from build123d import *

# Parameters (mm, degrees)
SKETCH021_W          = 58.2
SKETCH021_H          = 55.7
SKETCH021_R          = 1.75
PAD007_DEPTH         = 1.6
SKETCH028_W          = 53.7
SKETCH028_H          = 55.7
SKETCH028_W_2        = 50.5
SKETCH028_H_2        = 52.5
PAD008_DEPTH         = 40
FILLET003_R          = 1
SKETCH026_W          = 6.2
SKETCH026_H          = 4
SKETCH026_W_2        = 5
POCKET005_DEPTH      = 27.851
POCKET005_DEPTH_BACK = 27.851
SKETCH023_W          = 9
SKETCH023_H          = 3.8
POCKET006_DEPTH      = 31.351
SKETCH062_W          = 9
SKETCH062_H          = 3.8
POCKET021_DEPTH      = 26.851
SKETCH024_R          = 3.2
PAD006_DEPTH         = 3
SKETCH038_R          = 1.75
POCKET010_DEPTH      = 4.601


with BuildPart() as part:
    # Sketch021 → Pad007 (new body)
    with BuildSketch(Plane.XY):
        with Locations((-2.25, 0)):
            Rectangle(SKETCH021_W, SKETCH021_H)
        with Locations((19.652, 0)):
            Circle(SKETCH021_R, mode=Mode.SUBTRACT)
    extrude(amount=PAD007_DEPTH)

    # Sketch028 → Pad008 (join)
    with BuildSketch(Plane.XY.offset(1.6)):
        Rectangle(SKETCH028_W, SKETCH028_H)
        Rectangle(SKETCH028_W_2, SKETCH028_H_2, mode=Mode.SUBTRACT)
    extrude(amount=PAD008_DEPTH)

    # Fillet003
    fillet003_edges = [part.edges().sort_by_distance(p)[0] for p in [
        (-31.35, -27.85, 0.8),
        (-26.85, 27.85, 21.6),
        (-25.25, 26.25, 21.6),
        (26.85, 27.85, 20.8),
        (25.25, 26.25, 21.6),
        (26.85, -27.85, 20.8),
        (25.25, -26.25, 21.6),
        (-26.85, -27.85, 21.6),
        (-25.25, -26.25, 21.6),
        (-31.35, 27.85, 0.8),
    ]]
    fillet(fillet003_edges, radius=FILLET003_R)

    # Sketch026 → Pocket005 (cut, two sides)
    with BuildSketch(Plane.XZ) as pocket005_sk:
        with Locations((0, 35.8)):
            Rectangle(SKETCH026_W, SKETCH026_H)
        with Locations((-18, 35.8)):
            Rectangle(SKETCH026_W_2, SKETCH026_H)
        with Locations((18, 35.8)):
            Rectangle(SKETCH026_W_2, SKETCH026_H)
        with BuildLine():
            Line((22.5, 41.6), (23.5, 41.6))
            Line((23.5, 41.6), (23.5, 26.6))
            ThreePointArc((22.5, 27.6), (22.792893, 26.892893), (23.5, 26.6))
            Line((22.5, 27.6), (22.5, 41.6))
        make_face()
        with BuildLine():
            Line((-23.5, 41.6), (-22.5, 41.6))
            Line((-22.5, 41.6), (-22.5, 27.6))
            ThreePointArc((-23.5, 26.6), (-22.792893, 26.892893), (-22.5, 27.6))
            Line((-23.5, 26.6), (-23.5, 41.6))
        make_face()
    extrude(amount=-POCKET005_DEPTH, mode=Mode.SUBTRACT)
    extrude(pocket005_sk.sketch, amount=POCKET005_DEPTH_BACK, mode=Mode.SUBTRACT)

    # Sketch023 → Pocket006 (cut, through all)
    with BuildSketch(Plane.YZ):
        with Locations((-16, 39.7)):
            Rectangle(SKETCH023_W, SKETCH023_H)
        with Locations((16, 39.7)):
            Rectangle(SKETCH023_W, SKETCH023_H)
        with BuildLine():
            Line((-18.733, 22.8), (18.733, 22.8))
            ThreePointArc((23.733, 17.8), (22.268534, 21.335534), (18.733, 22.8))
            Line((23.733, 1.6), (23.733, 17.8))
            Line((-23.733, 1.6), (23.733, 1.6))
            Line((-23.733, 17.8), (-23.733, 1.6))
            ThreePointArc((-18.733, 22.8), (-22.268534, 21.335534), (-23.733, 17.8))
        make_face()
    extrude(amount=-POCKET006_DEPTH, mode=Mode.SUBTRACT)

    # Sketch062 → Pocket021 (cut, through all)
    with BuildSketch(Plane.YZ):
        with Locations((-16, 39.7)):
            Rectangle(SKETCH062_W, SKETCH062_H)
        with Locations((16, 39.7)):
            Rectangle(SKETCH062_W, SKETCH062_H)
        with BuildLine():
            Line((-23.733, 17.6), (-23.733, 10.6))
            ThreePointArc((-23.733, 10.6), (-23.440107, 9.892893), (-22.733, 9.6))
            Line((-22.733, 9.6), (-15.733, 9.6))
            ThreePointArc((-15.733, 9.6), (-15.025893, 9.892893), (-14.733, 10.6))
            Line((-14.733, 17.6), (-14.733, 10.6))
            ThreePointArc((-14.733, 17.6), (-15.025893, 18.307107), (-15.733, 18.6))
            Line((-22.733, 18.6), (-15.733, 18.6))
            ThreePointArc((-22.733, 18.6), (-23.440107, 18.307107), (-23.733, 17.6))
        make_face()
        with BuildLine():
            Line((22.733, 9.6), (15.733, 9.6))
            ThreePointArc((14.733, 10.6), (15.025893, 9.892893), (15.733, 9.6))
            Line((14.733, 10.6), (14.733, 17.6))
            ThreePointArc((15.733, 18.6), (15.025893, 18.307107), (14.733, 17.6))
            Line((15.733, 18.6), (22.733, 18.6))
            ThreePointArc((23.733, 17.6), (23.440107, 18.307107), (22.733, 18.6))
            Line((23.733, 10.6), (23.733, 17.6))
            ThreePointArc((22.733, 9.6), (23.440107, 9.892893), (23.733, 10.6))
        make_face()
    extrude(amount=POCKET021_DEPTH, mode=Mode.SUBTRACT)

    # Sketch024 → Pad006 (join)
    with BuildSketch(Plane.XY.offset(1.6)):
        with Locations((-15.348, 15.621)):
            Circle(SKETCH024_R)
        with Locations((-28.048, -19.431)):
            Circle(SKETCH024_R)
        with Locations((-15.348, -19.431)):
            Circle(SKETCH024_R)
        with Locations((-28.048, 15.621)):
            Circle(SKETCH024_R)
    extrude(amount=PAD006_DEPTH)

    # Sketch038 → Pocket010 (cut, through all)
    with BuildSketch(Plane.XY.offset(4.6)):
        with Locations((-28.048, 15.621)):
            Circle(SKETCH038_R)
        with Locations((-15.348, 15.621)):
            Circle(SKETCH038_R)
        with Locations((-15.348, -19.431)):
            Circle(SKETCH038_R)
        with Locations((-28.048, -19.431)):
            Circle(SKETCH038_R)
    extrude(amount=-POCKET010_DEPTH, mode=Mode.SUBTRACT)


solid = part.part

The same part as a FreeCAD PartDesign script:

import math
import FreeCAD as App
import Part
import Sketcher
from FreeCAD import Vector


def edges_at(feature, points):
    """Names of the edges that pass closest to the given points."""
    edges = feature.Shape.Edges
    near = lambda p: min(range(len(edges)), key=lambda i: edges[i].distToShape(Part.Vertex(*p))[0])
    return sorted({f"Edge{near(p) + 1}" for p in points})


def add_polygon(sketch, points):
    """Adds a closed chain of lines whose ends are joined by coincident constraints."""
    first, n = sketch.GeometryCount, len(points)
    for a, b in zip(points, points[1:] + points[:1]):
        sketch.addGeometry(Part.LineSegment(App.Vector(*a, 0), App.Vector(*b, 0)), False)
    for i in range(n):
        sketch.addConstraint(Sketcher.Constraint("Coincident", first + i, 2, first + (i + 1) % n, 1))

doc = App.newDocument("Part")
body = doc.addObject("PartDesign::Body", "Body")

sketch1 = doc.addObject("Sketcher::SketchObject", "Sketch")
body.addObject(sketch1)
sketch1.AttachmentSupport = (doc.XY_Plane, [""])
sketch1.MapMode = "FlatFace"
add_polygon(sketch1, [(-31.4, 27.9), (-31.4, -27.9), (26.9, -27.9), (26.9, 27.9)])
sketch1.addGeometry(Part.Circle(Vector(19.7, 0, 0), Vector(0, 0, 1), 1.8), False)
sketch1.addConstraint([
    Sketcher.Constraint("Vertical", 0),
    Sketcher.Constraint("Horizontal", 1),
    Sketcher.Constraint("Vertical", 2),
    Sketcher.Constraint("Horizontal", 3),
    Sketcher.Constraint("PointOnObject", 4, 3, -1),
    Sketcher.Constraint("Diameter", 4, 3.5),
    Sketcher.Constraint("DistanceX", 1, 1, 1, 2, 58.2),
    Sketcher.Constraint("DistanceY", 0, 2, 0, 1, 55.7),
    Sketcher.Constraint("DistanceX", 0, 2, -1, 1, 31.35),
    Sketcher.Constraint("DistanceY", 0, 2, -1, 1, 27.85),
    Sketcher.Constraint("DistanceX", -1, 1, 4, 3, 19.652),
])
pad1 = doc.addObject("PartDesign::Pad", "Pad")
body.addObject(pad1)
pad1.Profile = sketch1
pad1.Length = 1.6

sketch2 = doc.addObject("Sketcher::SketchObject", "Sketch001")
body.addObject(sketch2)
sketch2.AttachmentSupport = (doc.XY_Plane, [""])
sketch2.MapMode = "FlatFace"
sketch2.AttachmentOffset = App.Placement(Vector(0, 0, 1.6), App.Rotation())
add_polygon(sketch2, [(-27, 28), (-27, -28), (27, -28), (27, 28)])
add_polygon(sketch2, [(25, -26), (-25, -26), (-25, 26), (25, 26)])
sketch2.addConstraint([
    Sketcher.Constraint("Vertical", 0),
    Sketcher.Constraint("Horizontal", 1),
    Sketcher.Constraint("Vertical", 2),
    Sketcher.Constraint("Horizontal", 3),
    Sketcher.Constraint("Horizontal", 4),
    Sketcher.Constraint("Vertical", 5),
    Sketcher.Constraint("Horizontal", 6),
    Sketcher.Constraint("Vertical", 7),
    Sketcher.Constraint("Symmetric", 0, 2, 2, 2, -1, 1),
    Sketcher.Constraint("Symmetric", 4, 2, 6, 2, -1, 1),
    Sketcher.Constraint("DistanceX", 1, 1, 1, 2, 53.7),
    Sketcher.Constraint("DistanceX", 4, 2, 4, 1, 50.5),
    Sketcher.Constraint("DistanceY", 0, 2, 0, 1, 55.7),
    Sketcher.Constraint("DistanceY", 5, 1, 5, 2, 52.5),
])
pad2 = doc.addObject("PartDesign::Pad", "Pad001")
body.addObject(pad2)
pad2.Profile = sketch2
pad2.Length = 40
doc.recompute()

fillet = doc.addObject("PartDesign::Fillet", "Fillet")
body.addObject(fillet)
fillet.Base = (pad2, edges_at(pad2, [
    (-31.35, -27.85, 0.8),
    (-26.85, 27.85, 21.6),
    (-25.25, 26.25, 21.6),
    (26.85, 27.85, 20.8),
    (25.25, 26.25, 21.6),
    (26.85, -27.85, 20.8),
    (25.25, -26.25, 21.6),
    (-26.85, -27.85, 21.6),
    (-25.25, -26.25, 21.6),
    (-31.35, 27.85, 0.8),
]))
fillet.Radius = 1

sketch3 = doc.addObject("Sketcher::SketchObject", "Sketch002")
body.addObject(sketch3)
sketch3.AttachmentSupport = (doc.XZ_Plane, [""])
sketch3.MapMode = "FlatFace"
add_polygon(sketch3, [(-3.1, 37.8), (-3.1, 33.8), (3.1, 33.8), (3.1, 37.8)])
add_polygon(sketch3, [(-20.5, 37.8), (-20.5, 33.8), (-15.5, 33.8), (-15.5, 37.8)])
add_polygon(sketch3, [(15.5, 37.8), (15.5, 33.8), (20.5, 33.8), (20.5, 37.8)])
sketch3.addGeometry(Part.LineSegment(Vector(23.5, 41.6, 0), Vector(22.5, 41.6, 0)), False)
sketch3.addGeometry(Part.LineSegment(Vector(22.5, 41.6, 0), Vector(22.5, 27.6, 0)), False)
sketch3.addGeometry(Part.ArcOfCircle(Part.Circle(Vector(23.5, 27.6, 0), Vector(0, 0, 1), 1), math.radians(180), math.radians(270)), False)
sketch3.addGeometry(Part.LineSegment(Vector(23.5, 26.6, 0), Vector(23.5, 41.6, 0)), False)
sketch3.addGeometry(Part.LineSegment(Vector(-22.5, 41.6, 0), Vector(-23.5, 41.6, 0)), False)
sketch3.addGeometry(Part.LineSegment(Vector(-23.5, 41.6, 0), Vector(-23.5, 26.6, 0)), False)
sketch3.addGeometry(Part.ArcOfCircle(Part.Circle(Vector(-23.5, 27.6, 0), Vector(0, 0, 1), 1), math.radians(-90), math.radians(0)), False)
sketch3.addGeometry(Part.LineSegment(Vector(-22.5, 27.6, 0), Vector(-22.5, 41.6, 0)), False)
sketch3.addConstraint([
    Sketcher.Constraint("Coincident", 12, 2, 13, 1),
    Sketcher.Constraint("Tangent", 13, 2, 14, 1),
    Sketcher.Constraint("Coincident", 14, 2, 15, 1),
    Sketcher.Constraint("Coincident", 15, 2, 12, 1),
    Sketcher.Constraint("Coincident", 16, 2, 17, 1),
    Sketcher.Constraint("Coincident", 17, 2, 18, 1),
    Sketcher.Constraint("Tangent", 18, 2, 19, 1),
    Sketcher.Constraint("Coincident", 19, 2, 16, 1),
    Sketcher.Constraint("Vertical", 0),
    Sketcher.Constraint("Horizontal", 1),
    Sketcher.Constraint("Vertical", 2),
    Sketcher.Constraint("Horizontal", 3),
    Sketcher.Constraint("Vertical", 4),
    Sketcher.Constraint("Horizontal", 5),
    Sketcher.Constraint("Vertical", 6),
    Sketcher.Constraint("Horizontal", 7),
    Sketcher.Constraint("Vertical", 8),
    Sketcher.Constraint("Horizontal", 9),
    Sketcher.Constraint("Vertical", 10),
    Sketcher.Constraint("Horizontal", 11),
    Sketcher.Constraint("Horizontal", 12),
    Sketcher.Constraint("Vertical", 13),
    Sketcher.Constraint("Vertical", 15),
    Sketcher.Constraint("Horizontal", 16),
    Sketcher.Constraint("Vertical", 17),
    Sketcher.Constraint("Vertical", 19),
    Sketcher.Constraint("Equal", 14, 18),
    Sketcher.Constraint("Symmetric", 14, 3, 18, 3, -2),
    Sketcher.Constraint("Symmetric", 5, 2, 8, 2, -2),
    Sketcher.Constraint("Symmetric", 7, 2, 10, 2, -2),
    Sketcher.Constraint("Symmetric", 15, 2, 16, 2, -2),
    Sketcher.Constraint("Horizontal", 1, 2, 4, 2),
    Sketcher.Constraint("Horizontal", 3, 2, 6, 2),
    Sketcher.Constraint("Vertical", 18, 3, 16, 2),
    Sketcher.Constraint("Radius", 14, 0.999999),
    Sketcher.Constraint("DistanceX", 5, 1, 5, 2, 5.0),
    Sketcher.Constraint("DistanceY", 0, 2, 0, 1, 4.0),
    Sketcher.Constraint("DistanceY", 13, 2, 13, 1, 14.0),
    Sketcher.Constraint("DistanceX", 1, 1, 1, 2, 6.2),
    Sketcher.Constraint("DistanceX", 18, 3, 14, 3, 46.999999),
    Sketcher.Constraint("DistanceX", 18, 3, 4, 2, 2.999999),
    Sketcher.Constraint("DistanceY", -1, 1, 14, 3, 27.599999),
    Sketcher.Constraint("DistanceX", 0, 2, -1, 1, 3.1),
    Sketcher.Constraint("DistanceY", -1, 1, 0, 2, 33.8),
])
pocket1 = doc.addObject("PartDesign::Pocket", "Pocket")
body.addObject(pocket1)
pocket1.Profile = sketch3
pocket1.Type = "ThroughAll"
pocket1.Midplane = True

sketch4 = doc.addObject("Sketcher::SketchObject", "Sketch003")
body.addObject(sketch4)
sketch4.AttachmentSupport = (doc.YZ_Plane, [""])
sketch4.MapMode = "FlatFace"
add_polygon(sketch4, [(-20.5, 41.6), (-20.5, 37.8), (-11.5, 37.8), (-11.5, 41.6)])
add_polygon(sketch4, [(11.5, 41.6), (11.5, 37.8), (20.5, 37.8), (20.5, 41.6)])
sketch4.addGeometry(Part.LineSegment(Vector(18.7, 22.8, 0), Vector(-18.7, 22.8, 0)), False)
sketch4.addGeometry(Part.ArcOfCircle(Part.Circle(Vector(-18.7, 17.8, 0), Vector(0, 0, 1), 5), math.radians(90), math.radians(180)), False)
sketch4.addGeometry(Part.LineSegment(Vector(-23.7, 17.8, 0), Vector(-23.7, 1.6, 0)), False)
sketch4.addGeometry(Part.LineSegment(Vector(-23.7, 1.6, 0), Vector(23.7, 1.6, 0)), False)
sketch4.addGeometry(Part.LineSegment(Vector(23.7, 1.6, 0), Vector(23.7, 17.8, 0)), False)
sketch4.addGeometry(Part.ArcOfCircle(Part.Circle(Vector(18.7, 17.8, 0), Vector(0, 0, 1), 5), math.radians(0), math.radians(90)), False)
sketch4.addConstraint([
    Sketcher.Constraint("Tangent", 8, 2, 9, 1),
    Sketcher.Constraint("Tangent", 9, 2, 10, 1),
    Sketcher.Constraint("Coincident", 10, 2, 11, 1),
    Sketcher.Constraint("Coincident", 11, 2, 12, 1),
    Sketcher.Constraint("Tangent", 12, 2, 13, 1),
    Sketcher.Constraint("Tangent", 13, 2, 8, 1),
    Sketcher.Constraint("Vertical", 0),
    Sketcher.Constraint("Horizontal", 1),
    Sketcher.Constraint("Vertical", 2),
    Sketcher.Constraint("Horizontal", 3),
    Sketcher.Constraint("Vertical", 4),
    Sketcher.Constraint("Horizontal", 5),
    Sketcher.Constraint("Vertical", 6),
    Sketcher.Constraint("Horizontal", 7),
    Sketcher.Constraint("Horizontal", 8),
    Sketcher.Constraint("Vertical", 10),
    Sketcher.Constraint("Horizontal", 11),
    Sketcher.Constraint("Vertical", 12),
    Sketcher.Constraint("Equal", 9, 13),
    Sketcher.Constraint("Symmetric", 1, 2, 4, 2, -2),
    Sketcher.Constraint("Symmetric", 3, 2, 6, 2, -2),
    Sketcher.Constraint("Radius", 9, 5.0),
    Sketcher.Constraint("DistanceX", 1, 1, 1, 2, 9.0),
    Sketcher.Constraint("DistanceY", 0, 2, 0, 1, 3.8),
    Sketcher.Constraint("DistanceY", 10, 2, 10, 1, 16.2),
    Sketcher.Constraint("DistanceY", 9, 3, 0, 2, 20.0),
    Sketcher.Constraint("DistanceX", 1, 2, 4, 2, 23.0),
    Sketcher.Constraint("DistanceY", -1, 1, 9, 3, 17.8),
    Sketcher.Constraint("DistanceX", 8, 2, 8, 1, 37.466),
    Sketcher.Constraint("DistanceX", 9, 3, -1, 1, 18.733),
])
pocket2 = doc.addObject("PartDesign::Pocket", "Pocket001")
body.addObject(pocket2)
pocket2.Profile = sketch4
pocket2.Type = "ThroughAll"

sketch5 = doc.addObject("Sketcher::SketchObject", "Sketch004")
body.addObject(sketch5)
sketch5.AttachmentSupport = (doc.YZ_Plane, [""])
sketch5.MapMode = "FlatFace"
add_polygon(sketch5, [(-20.5, 41.6), (-20.5, 37.8), (-11.5, 37.8), (-11.5, 41.6)])
add_polygon(sketch5, [(11.5, 41.6), (11.5, 37.8), (20.5, 37.8), (20.5, 41.6)])
sketch5.addGeometry(Part.LineSegment(Vector(-23.7, 17.6, 0), Vector(-23.7, 10.6, 0)), False)
sketch5.addGeometry(Part.ArcOfCircle(Part.Circle(Vector(-22.7, 10.6, 0), Vector(0, 0, 1), 1), math.radians(180), math.radians(270)), False)
sketch5.addGeometry(Part.LineSegment(Vector(-22.7, 9.6, 0), Vector(-15.7, 9.6, 0)), False)
sketch5.addGeometry(Part.ArcOfCircle(Part.Circle(Vector(-15.7, 10.6, 0), Vector(0, 0, 1), 1), math.radians(-90), math.radians(0)), False)
sketch5.addGeometry(Part.LineSegment(Vector(-14.7, 10.6, 0), Vector(-14.7, 17.6, 0)), False)
sketch5.addGeometry(Part.ArcOfCircle(Part.Circle(Vector(-15.7, 17.6, 0), Vector(0, 0, 1), 1), math.radians(0), math.radians(90)), False)
sketch5.addGeometry(Part.LineSegment(Vector(-15.7, 18.6, 0), Vector(-22.7, 18.6, 0)), False)
sketch5.addGeometry(Part.ArcOfCircle(Part.Circle(Vector(-22.7, 17.6, 0), Vector(0, 0, 1), 1), math.radians(90), math.radians(180)), False)
sketch5.addGeometry(Part.LineSegment(Vector(15.7, 9.6, 0), Vector(22.7, 9.6, 0)), False)
sketch5.addGeometry(Part.ArcOfCircle(Part.Circle(Vector(22.7, 10.6, 0), Vector(0, 0, 1), 1), math.radians(-90), math.radians(0)), False)
sketch5.addGeometry(Part.LineSegment(Vector(23.7, 10.6, 0), Vector(23.7, 17.6, 0)), False)
sketch5.addGeometry(Part.ArcOfCircle(Part.Circle(Vector(22.7, 17.6, 0), Vector(0, 0, 1), 1), math.radians(0), math.radians(90)), False)
sketch5.addGeometry(Part.LineSegment(Vector(22.7, 18.6, 0), Vector(15.7, 18.6, 0)), False)
sketch5.addGeometry(Part.ArcOfCircle(Part.Circle(Vector(15.7, 17.6, 0), Vector(0, 0, 1), 1), math.radians(90), math.radians(180)), False)
sketch5.addGeometry(Part.LineSegment(Vector(14.7, 17.6, 0), Vector(14.7, 10.6, 0)), False)
sketch5.addGeometry(Part.ArcOfCircle(Part.Circle(Vector(15.7, 10.6, 0), Vector(0, 0, 1), 1), math.radians(180), math.radians(270)), False)
sketch5.addConstraint([
    Sketcher.Constraint("Tangent", 8, 2, 9, 1),
    Sketcher.Constraint("Tangent", 9, 2, 10, 1),
    Sketcher.Constraint("Tangent", 10, 2, 11, 1),
    Sketcher.Constraint("Tangent", 11, 2, 12, 1),
    Sketcher.Constraint("Tangent", 12, 2, 13, 1),
    Sketcher.Constraint("Tangent", 13, 2, 14, 1),
    Sketcher.Constraint("Tangent", 14, 2, 15, 1),
    Sketcher.Constraint("Tangent", 15, 2, 8, 1),
    Sketcher.Constraint("Tangent", 16, 2, 17, 1),
    Sketcher.Constraint("Tangent", 17, 2, 18, 1),
    Sketcher.Constraint("Tangent", 18, 2, 19, 1),
    Sketcher.Constraint("Tangent", 19, 2, 20, 1),
    Sketcher.Constraint("Tangent", 20, 2, 21, 1),
    Sketcher.Constraint("Tangent", 21, 2, 22, 1),
    Sketcher.Constraint("Tangent", 22, 2, 23, 1),
    Sketcher.Constraint("Tangent", 23, 2, 16, 1),
    Sketcher.Constraint("Vertical", 0),
    Sketcher.Constraint("Horizontal", 1),
    Sketcher.Constraint("Vertical", 2),
    Sketcher.Constraint("Horizontal", 3),
    Sketcher.Constraint("Vertical", 4),
    Sketcher.Constraint("Horizontal", 5),
    Sketcher.Constraint("Vertical", 6),
    Sketcher.Constraint("Horizontal", 7),
    Sketcher.Constraint("Vertical", 8),
    Sketcher.Constraint("Horizontal", 10),
    Sketcher.Constraint("Vertical", 12),
    Sketcher.Constraint("Horizontal", 14),
    Sketcher.Constraint("Horizontal", 16),
    Sketcher.Constraint("Vertical", 18),
    Sketcher.Constraint("Horizontal", 20),
    Sketcher.Constraint("Vertical", 22),
    Sketcher.Constraint("Equal", 9, 11),
    Sketcher.Constraint("Equal", 11, 13),
    Sketcher.Constraint("Equal", 13, 15),
    Sketcher.Constraint("Equal", 15, 17),
    Sketcher.Constraint("Equal", 17, 19),
    Sketcher.Constraint("Equal", 19, 21),
    Sketcher.Constraint("Equal", 21, 23),
    Sketcher.Constraint("Symmetric", 9, 3, 17, 3, -2),
    Sketcher.Constraint("Symmetric", 13, 3, 21, 3, -2),
    Sketcher.Constraint("Symmetric", 1, 2, 4, 2, -2),
    Sketcher.Constraint("Symmetric", 3, 2, 6, 2, -2),
    Sketcher.Constraint("Equal", 20, 8),
    Sketcher.Constraint("Radius", 9, 0.999999),
    Sketcher.Constraint("DistanceX", 1, 1, 1, 2, 9.0),
    Sketcher.Constraint("DistanceX", 10, 1, 10, 2, 7.0),
    Sketcher.Constraint("DistanceY", 0, 2, 0, 1, 3.8),
    Sketcher.Constraint("DistanceY", 13, 3, 2, 2, 23.999999),
    Sketcher.Constraint("DistanceX", 1, 2, 4, 2, 23.0),
    Sketcher.Constraint("DistanceY", -1, 1, 9, 3, 10.599999),
    Sketcher.Constraint("DistanceX", 9, 3, -1, 1, 22.733001),
])
pocket3 = doc.addObject("PartDesign::Pocket", "Pocket002")
body.addObject(pocket3)
pocket3.Profile = sketch5
pocket3.Type = "ThroughAll"
pocket3.Reversed = True

sketch6 = doc.addObject("Sketcher::SketchObject", "Sketch005")
body.addObject(sketch6)
sketch6.AttachmentSupport = (doc.XY_Plane, [""])
sketch6.MapMode = "FlatFace"
sketch6.AttachmentOffset = App.Placement(Vector(0, 0, 1.6), App.Rotation())
sketch6.addGeometry([
    Part.Circle(Vector(-15.3, 15.6, 0), Vector(0, 0, 1), 3.2),
    Part.Circle(Vector(-28, -19.4, 0), Vector(0, 0, 1), 3.2),
    Part.Circle(Vector(-15.3, -19.4, 0), Vector(0, 0, 1), 3.2),
    Part.Circle(Vector(-28, 15.6, 0), Vector(0, 0, 1), 3.2),
], False)
sketch6.addConstraint([
    Sketcher.Constraint("Equal", 0, 1),
    Sketcher.Constraint("Equal", 1, 2),
    Sketcher.Constraint("Equal", 2, 3),
    Sketcher.Constraint("Horizontal", 1, 3, 2, 3),
    Sketcher.Constraint("Horizontal", 0, 3, 3, 3),
    Sketcher.Constraint("Vertical", 0, 3, 2, 3),
    Sketcher.Constraint("Vertical", 1, 3, 3, 3),
    Sketcher.Constraint("Diameter", 0, 6.4),
    Sketcher.Constraint("DistanceX", 1, 3, 0, 3, 12.7),
    Sketcher.Constraint("DistanceX", 0, 3, -1, 1, 15.348),
    Sketcher.Constraint("DistanceY", -1, 1, 0, 3, 15.621),
    Sketcher.Constraint("DistanceY", 1, 3, -1, 1, 19.431),
])
pad3 = doc.addObject("PartDesign::Pad", "Pad002")
body.addObject(pad3)
pad3.Profile = sketch6
pad3.Length = 3

sketch7 = doc.addObject("Sketcher::SketchObject", "Sketch006")
body.addObject(sketch7)
sketch7.AttachmentSupport = (doc.XY_Plane, [""])
sketch7.MapMode = "FlatFace"
sketch7.AttachmentOffset = App.Placement(Vector(0, 0, 4.6), App.Rotation())
sketch7.addGeometry([
    Part.Circle(Vector(-28, 15.6, 0), Vector(0, 0, 1), 1.8),
    Part.Circle(Vector(-15.3, 15.6, 0), Vector(0, 0, 1), 1.8),
    Part.Circle(Vector(-15.3, -19.4, 0), Vector(0, 0, 1), 1.8),
    Part.Circle(Vector(-28, -19.4, 0), Vector(0, 0, 1), 1.8),
], False)
sketch7.addConstraint([
    Sketcher.Constraint("Equal", 0, 1),
    Sketcher.Constraint("Equal", 1, 2),
    Sketcher.Constraint("Equal", 2, 3),
    Sketcher.Constraint("Horizontal", 0, 3, 1, 3),
    Sketcher.Constraint("Horizontal", 2, 3, 3, 3),
    Sketcher.Constraint("Vertical", 1, 3, 2, 3),
    Sketcher.Constraint("Vertical", 0, 3, 3, 3),
    Sketcher.Constraint("Diameter", 0, 3.5),
    Sketcher.Constraint("DistanceX", 0, 3, 1, 3, 12.7),
    Sketcher.Constraint("DistanceX", 0, 3, -1, 1, 28.048),
    Sketcher.Constraint("DistanceY", -1, 1, 0, 3, 15.621),
    Sketcher.Constraint("DistanceY", 2, 3, -1, 1, 19.431),
])
pocket4 = doc.addObject("PartDesign::Pocket", "Pocket003")
body.addObject(pocket4)
pocket4.Profile = sketch7
pocket4.Type = "ThroughAll"

doc.recompute()
